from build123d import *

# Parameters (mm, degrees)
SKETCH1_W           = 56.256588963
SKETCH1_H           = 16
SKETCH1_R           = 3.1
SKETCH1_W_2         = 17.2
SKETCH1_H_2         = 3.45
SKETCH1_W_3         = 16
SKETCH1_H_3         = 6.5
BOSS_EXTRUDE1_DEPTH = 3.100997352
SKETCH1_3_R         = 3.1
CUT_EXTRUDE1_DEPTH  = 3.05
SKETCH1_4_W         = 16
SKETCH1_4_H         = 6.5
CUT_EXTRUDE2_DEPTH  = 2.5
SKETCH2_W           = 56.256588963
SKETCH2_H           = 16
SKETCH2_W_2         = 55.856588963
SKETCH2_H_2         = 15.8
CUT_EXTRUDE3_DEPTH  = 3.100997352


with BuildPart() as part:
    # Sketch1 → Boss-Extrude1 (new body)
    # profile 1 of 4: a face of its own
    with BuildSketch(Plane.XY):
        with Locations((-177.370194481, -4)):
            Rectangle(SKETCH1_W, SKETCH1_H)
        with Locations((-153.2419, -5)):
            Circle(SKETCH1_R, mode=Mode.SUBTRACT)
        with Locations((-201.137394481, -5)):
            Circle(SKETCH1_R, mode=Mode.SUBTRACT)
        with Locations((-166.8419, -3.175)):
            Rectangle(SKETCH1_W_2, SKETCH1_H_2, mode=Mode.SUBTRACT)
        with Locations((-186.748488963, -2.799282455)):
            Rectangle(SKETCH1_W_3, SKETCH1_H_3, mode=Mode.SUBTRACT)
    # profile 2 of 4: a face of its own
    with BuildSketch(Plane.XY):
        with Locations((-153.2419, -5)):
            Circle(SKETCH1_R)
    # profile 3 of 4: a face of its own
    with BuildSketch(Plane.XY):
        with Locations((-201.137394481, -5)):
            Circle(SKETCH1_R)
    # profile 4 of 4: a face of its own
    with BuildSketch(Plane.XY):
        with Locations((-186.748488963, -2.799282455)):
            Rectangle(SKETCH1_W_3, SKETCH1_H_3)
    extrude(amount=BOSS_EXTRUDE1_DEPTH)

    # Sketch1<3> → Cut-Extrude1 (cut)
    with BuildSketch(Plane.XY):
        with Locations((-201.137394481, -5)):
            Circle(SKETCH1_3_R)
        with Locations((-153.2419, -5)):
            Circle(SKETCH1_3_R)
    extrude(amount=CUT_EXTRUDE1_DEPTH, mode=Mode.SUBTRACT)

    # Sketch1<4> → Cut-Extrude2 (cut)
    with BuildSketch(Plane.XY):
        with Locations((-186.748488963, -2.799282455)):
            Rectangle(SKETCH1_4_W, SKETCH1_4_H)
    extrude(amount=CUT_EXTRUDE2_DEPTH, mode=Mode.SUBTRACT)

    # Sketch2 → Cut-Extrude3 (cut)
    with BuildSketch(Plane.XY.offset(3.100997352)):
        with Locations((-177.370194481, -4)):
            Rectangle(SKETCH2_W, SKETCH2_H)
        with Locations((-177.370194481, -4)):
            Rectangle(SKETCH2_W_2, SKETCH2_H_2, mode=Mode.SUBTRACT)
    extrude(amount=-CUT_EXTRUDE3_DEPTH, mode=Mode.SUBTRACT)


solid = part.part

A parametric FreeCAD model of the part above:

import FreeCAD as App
import Part
import Sketcher
Q = App.Units.Quantity

doc = App.newDocument("Part")
body = doc.addObject("PartDesign::Body", "Body")

# Sketch on XY plane
sketch1 = body.newObject("Sketcher::SketchObject", "Sketch")
sketch1.AttachmentSupport = (doc.getObject("XY_Plane"), [""])
sketch1.MapMode = "FlatFace"
sketch1.addGeometry([
    Part.LineSegment(App.Vector(-205.5, 4, 0), App.Vector(-205.5, -12, 0)),  # 0
    Part.LineSegment(App.Vector(-205.5, -12, 0), App.Vector(-149.2, -12, 0)),  # 1
    Part.LineSegment(App.Vector(-149.2, -12, 0), App.Vector(-149.2, 4, 0)),  # 2
    Part.LineSegment(App.Vector(-149.2, 4, 0), App.Vector(-205.5, 4, 0)),  # 3
    Part.LineSegment(App.Vector(-158.2, -4.9, 0), App.Vector(-175.4, -4.9, 0)),  # 4
    Part.LineSegment(App.Vector(-175.4, -4.9, 0), App.Vector(-175.4, -1.4, 0)),  # 5
    Part.LineSegment(App.Vector(-175.4, -1.4, 0), App.Vector(-158.2, -1.4, 0)),  # 6
    Part.LineSegment(App.Vector(-158.2, -1.4, 0), App.Vector(-158.2, -4.9, 0)),  # 7
], False)
sketch1.addConstraint([
    Sketcher.Constraint("Coincident", 0, 2, 1, 1),
    Sketcher.Constraint("Coincident", 1, 2, 2, 1),
    Sketcher.Constraint("Coincident", 2, 2, 3, 1),
    Sketcher.Constraint("Coincident", 3, 2, 0, 1),
    Sketcher.Constraint("Coincident", 4, 2, 5, 1),
    Sketcher.Constraint("Coincident", 5, 2, 6, 1),
    Sketcher.Constraint("Coincident", 6, 2, 7, 1),
    Sketcher.Constraint("Coincident", 7, 2, 4, 1),
    Sketcher.Constraint("Vertical", 0),
    Sketcher.Constraint("Horizontal", 1),
    Sketcher.Constraint("Vertical", 2),
    Sketcher.Constraint("Horizontal", 3),
    Sketcher.Constraint("Horizontal", 4),
    Sketcher.Constraint("Vertical", 5),
    Sketcher.Constraint("Horizontal", 6),
    Sketcher.Constraint("Vertical", 7),
    Sketcher.Constraint("DistanceY", 0, 2, 0, 1, Q("16 mm")),
    Sketcher.Constraint("DistanceX", 4, 2, 4, 1, Q("17.2 mm")),
    Sketcher.Constraint("DistanceY", 0, 2, -1, 1, Q("12 mm")),
    Sketcher.Constraint("DistanceX", 6, 2, 2, 2, Q("9 mm")),
    Sketcher.Constraint("DistanceY", 5, 1, 5, 2, Q("3.45 mm")),
    Sketcher.Constraint("DistanceY", 4, 2, -1, 1, Q("4.9 mm")),
    Sketcher.Constraint("DistanceX", 1, 1, 1, 2, Q("56.256589 mm")),
    Sketcher.Constraint("DistanceX", 1, 2, -1, 1, Q("149.2419 mm")),
])
pad1 = body.newObject("PartDesign::Pad", "Pad")
pad1.Profile = sketch1
pad1.Length = 3.100997

# Sketch on XY plane
sketch2 = body.newObject("Sketcher::SketchObject", "Sketch001")
sketch2.AttachmentSupport = (doc.getObject("XY_Plane"), [""])
sketch2.MapMode = "FlatFace"
sketch2.addGeometry([
    Part.Circle(App.Vector(-201.1, -5, 0), App.Vector(0, 0, 1), 3.1),
    Part.Circle(App.Vector(-153.2, -5, 0), App.Vector(0, 0, 1), 3.1),
], False)
sketch2.addConstraint([
    Sketcher.Constraint("Equal", 0, 1),
    Sketcher.Constraint("Horizontal", 0, 3, 1, 3),
    Sketcher.Constraint("Diameter", 0, Q("6.2 mm")),
    Sketcher.Constraint("DistanceY", 0, 3, -1, 1, Q("5 mm")),
    Sketcher.Constraint("DistanceX", 1, 3, -1, 1, Q("153.2419 mm")),
    Sketcher.Constraint("DistanceX", 0, 3, -1, 1, Q("201.137394 mm")),
])
pocket1 = body.newObject("PartDesign::Pocket", "Pocket")
pocket1.Profile = sketch2
pocket1.Length = 3.05
pocket1.Reversed = True

# Sketch on XY plane
sketch3 = body.newObject("Sketcher::SketchObject", "Sketch002")
sketch3.AttachmentSupport = (doc.getObject("XY_Plane"), [""])
sketch3.MapMode = "FlatFace"
sketch3.addGeometry([
    Part.LineSegment(App.Vector(-195, 0, 0), App.Vector(-195, -6, 0)),
    Part.LineSegment(App.Vector(-195, -6, 0), App.Vector(-179, -6, 0)),
    Part.LineSegment(App.Vector(-179, -6, 0), App.Vector(-179, 0, 0)),
    Part.LineSegment(App.Vector(-179, 0, 0), App.Vector(-195, 0, 0)),
], False)
sketch3.addConstraint([
    Sketcher.Constraint("Coincident", 0, 2, 1, 1),
    Sketcher.Constraint("Coincident", 1, 2, 2, 1),
    Sketcher.Constraint("Coincident", 2, 2, 3, 1),
    Sketcher.Constraint("Coincident", 3, 2, 0, 1),
    Sketcher.Constraint("Vertical", 0),
    Sketcher.Constraint("Horizontal", 1),
    Sketcher.Constraint("Vertical", 2),
    Sketcher.Constraint("Horizontal", 3),
    Sketcher.Constraint("DistanceX", 1, 1, 1, 2, Q("16 mm")),
    Sketcher.Constraint("DistanceY", 0, 2, 0, 1, Q("6.5 mm")),
    Sketcher.Constraint("DistanceX", 0, 2, -1, 1, Q("194.748489 mm")),
    Sketcher.Constraint("DistanceY", 0, 2, -1, 1, Q("6.049282 mm")),
])
pocket2 = body.newObject("PartDesign::Pocket", "Pocket001")
pocket2.Profile = sketch3
pocket2.Length = 2.5
pocket2.Reversed = True

# Sketch on XY plane
sketch4 = body.newObject("Sketcher::SketchObject", "Sketch003")
sketch4.AttachmentSupport = (doc.getObject("XY_Plane"), [""])
sketch4.MapMode = "FlatFace"
sketch4.AttachmentOffset = App.Placement(App.Vector(0, 0, 3.100997), App.Rotation())
sketch4.addGeometry([
    Part.LineSegment(App.Vector(-205, 4, 0), App.Vector(-205, -12, 0)),  # 0
    Part.LineSegment(App.Vector(-205, -12, 0), App.Vector(-149, -12, 0)),  # 1
    Part.LineSegment(App.Vector(-149, -12, 0), App.Vector(-149, 4, 0)),  # 2
    Part.LineSegment(App.Vector(-149, 4, 0), App.Vector(-205, 4, 0)),  # 3
    Part.LineSegment(App.Vector(-149, -12, 0), App.Vector(-205, -12, 0)),  # 4
    Part.LineSegment(App.Vector(-205, -12, 0), App.Vector(-205, 4, 0)),  # 5
    Part.LineSegment(App.Vector(-205, 4, 0), App.Vector(-149, 4, 0)),  # 6
    Part.LineSegment(App.Vector(-149, 4, 0), App.Vector(-149, -12, 0)),  # 7
], False)
sketch4.addConstraint([
    Sketcher.Constraint("Coincident", 0, 2, 1, 1),
    Sketcher.Constraint("Coincident", 1, 2, 2, 1),
    Sketcher.Constraint("Coincident", 2, 2, 3, 1),
    Sketcher.Constraint("Coincident", 3, 2, 0, 1),
    Sketcher.Constraint("Coincident", 4, 2, 5, 1),
    Sketcher.Constraint("Coincident", 5, 2, 6, 1),
    Sketcher.Constraint("Coincident", 6, 2, 7, 1),
    Sketcher.Constraint("Coincident", 7, 2, 4, 1),
    Sketcher.Constraint("Vertical", 0),
    Sketcher.Constraint("Horizontal", 1),
    Sketcher.Constraint("Vertical", 2),
    Sketcher.Constraint("Horizontal", 3),
    Sketcher.Constraint("Horizontal", 4),
    Sketcher.Constraint("Vertical", 5),
    Sketcher.Constraint("Horizontal", 6),
    Sketcher.Constraint("Vertical", 7),
    Sketcher.Constraint("DistanceY", 0, 2, 0, 1, Q("16 mm")),
    Sketcher.Constraint("DistanceY", 5, 1, 5, 2, Q("15.8 mm")),
    Sketcher.Constraint("DistanceY", 0, 2, -1, 1, Q("12 mm")),
    Sketcher.Constraint("DistanceY", 4, 2, -1, 1, Q("11.9 mm")),
    Sketcher.Constraint("DistanceX", 0, 2, 4, 2, Q("0.2 mm")),
    Sketcher.Constraint("DistanceX", 6, 2, 2, 2, Q("0.2 mm")),
    Sketcher.Constraint("DistanceX", 1, 1, 1, 2, Q("56.256589 mm")),
    Sketcher.Constraint("DistanceX", 1, 2, -1, 1, Q("149.2419 mm")),
])
pocket3 = body.newObject("PartDesign::Pocket", "Pocket002")
pocket3.Profile = sketch4
pocket3.Length = 3.100997

doc.recompute()
